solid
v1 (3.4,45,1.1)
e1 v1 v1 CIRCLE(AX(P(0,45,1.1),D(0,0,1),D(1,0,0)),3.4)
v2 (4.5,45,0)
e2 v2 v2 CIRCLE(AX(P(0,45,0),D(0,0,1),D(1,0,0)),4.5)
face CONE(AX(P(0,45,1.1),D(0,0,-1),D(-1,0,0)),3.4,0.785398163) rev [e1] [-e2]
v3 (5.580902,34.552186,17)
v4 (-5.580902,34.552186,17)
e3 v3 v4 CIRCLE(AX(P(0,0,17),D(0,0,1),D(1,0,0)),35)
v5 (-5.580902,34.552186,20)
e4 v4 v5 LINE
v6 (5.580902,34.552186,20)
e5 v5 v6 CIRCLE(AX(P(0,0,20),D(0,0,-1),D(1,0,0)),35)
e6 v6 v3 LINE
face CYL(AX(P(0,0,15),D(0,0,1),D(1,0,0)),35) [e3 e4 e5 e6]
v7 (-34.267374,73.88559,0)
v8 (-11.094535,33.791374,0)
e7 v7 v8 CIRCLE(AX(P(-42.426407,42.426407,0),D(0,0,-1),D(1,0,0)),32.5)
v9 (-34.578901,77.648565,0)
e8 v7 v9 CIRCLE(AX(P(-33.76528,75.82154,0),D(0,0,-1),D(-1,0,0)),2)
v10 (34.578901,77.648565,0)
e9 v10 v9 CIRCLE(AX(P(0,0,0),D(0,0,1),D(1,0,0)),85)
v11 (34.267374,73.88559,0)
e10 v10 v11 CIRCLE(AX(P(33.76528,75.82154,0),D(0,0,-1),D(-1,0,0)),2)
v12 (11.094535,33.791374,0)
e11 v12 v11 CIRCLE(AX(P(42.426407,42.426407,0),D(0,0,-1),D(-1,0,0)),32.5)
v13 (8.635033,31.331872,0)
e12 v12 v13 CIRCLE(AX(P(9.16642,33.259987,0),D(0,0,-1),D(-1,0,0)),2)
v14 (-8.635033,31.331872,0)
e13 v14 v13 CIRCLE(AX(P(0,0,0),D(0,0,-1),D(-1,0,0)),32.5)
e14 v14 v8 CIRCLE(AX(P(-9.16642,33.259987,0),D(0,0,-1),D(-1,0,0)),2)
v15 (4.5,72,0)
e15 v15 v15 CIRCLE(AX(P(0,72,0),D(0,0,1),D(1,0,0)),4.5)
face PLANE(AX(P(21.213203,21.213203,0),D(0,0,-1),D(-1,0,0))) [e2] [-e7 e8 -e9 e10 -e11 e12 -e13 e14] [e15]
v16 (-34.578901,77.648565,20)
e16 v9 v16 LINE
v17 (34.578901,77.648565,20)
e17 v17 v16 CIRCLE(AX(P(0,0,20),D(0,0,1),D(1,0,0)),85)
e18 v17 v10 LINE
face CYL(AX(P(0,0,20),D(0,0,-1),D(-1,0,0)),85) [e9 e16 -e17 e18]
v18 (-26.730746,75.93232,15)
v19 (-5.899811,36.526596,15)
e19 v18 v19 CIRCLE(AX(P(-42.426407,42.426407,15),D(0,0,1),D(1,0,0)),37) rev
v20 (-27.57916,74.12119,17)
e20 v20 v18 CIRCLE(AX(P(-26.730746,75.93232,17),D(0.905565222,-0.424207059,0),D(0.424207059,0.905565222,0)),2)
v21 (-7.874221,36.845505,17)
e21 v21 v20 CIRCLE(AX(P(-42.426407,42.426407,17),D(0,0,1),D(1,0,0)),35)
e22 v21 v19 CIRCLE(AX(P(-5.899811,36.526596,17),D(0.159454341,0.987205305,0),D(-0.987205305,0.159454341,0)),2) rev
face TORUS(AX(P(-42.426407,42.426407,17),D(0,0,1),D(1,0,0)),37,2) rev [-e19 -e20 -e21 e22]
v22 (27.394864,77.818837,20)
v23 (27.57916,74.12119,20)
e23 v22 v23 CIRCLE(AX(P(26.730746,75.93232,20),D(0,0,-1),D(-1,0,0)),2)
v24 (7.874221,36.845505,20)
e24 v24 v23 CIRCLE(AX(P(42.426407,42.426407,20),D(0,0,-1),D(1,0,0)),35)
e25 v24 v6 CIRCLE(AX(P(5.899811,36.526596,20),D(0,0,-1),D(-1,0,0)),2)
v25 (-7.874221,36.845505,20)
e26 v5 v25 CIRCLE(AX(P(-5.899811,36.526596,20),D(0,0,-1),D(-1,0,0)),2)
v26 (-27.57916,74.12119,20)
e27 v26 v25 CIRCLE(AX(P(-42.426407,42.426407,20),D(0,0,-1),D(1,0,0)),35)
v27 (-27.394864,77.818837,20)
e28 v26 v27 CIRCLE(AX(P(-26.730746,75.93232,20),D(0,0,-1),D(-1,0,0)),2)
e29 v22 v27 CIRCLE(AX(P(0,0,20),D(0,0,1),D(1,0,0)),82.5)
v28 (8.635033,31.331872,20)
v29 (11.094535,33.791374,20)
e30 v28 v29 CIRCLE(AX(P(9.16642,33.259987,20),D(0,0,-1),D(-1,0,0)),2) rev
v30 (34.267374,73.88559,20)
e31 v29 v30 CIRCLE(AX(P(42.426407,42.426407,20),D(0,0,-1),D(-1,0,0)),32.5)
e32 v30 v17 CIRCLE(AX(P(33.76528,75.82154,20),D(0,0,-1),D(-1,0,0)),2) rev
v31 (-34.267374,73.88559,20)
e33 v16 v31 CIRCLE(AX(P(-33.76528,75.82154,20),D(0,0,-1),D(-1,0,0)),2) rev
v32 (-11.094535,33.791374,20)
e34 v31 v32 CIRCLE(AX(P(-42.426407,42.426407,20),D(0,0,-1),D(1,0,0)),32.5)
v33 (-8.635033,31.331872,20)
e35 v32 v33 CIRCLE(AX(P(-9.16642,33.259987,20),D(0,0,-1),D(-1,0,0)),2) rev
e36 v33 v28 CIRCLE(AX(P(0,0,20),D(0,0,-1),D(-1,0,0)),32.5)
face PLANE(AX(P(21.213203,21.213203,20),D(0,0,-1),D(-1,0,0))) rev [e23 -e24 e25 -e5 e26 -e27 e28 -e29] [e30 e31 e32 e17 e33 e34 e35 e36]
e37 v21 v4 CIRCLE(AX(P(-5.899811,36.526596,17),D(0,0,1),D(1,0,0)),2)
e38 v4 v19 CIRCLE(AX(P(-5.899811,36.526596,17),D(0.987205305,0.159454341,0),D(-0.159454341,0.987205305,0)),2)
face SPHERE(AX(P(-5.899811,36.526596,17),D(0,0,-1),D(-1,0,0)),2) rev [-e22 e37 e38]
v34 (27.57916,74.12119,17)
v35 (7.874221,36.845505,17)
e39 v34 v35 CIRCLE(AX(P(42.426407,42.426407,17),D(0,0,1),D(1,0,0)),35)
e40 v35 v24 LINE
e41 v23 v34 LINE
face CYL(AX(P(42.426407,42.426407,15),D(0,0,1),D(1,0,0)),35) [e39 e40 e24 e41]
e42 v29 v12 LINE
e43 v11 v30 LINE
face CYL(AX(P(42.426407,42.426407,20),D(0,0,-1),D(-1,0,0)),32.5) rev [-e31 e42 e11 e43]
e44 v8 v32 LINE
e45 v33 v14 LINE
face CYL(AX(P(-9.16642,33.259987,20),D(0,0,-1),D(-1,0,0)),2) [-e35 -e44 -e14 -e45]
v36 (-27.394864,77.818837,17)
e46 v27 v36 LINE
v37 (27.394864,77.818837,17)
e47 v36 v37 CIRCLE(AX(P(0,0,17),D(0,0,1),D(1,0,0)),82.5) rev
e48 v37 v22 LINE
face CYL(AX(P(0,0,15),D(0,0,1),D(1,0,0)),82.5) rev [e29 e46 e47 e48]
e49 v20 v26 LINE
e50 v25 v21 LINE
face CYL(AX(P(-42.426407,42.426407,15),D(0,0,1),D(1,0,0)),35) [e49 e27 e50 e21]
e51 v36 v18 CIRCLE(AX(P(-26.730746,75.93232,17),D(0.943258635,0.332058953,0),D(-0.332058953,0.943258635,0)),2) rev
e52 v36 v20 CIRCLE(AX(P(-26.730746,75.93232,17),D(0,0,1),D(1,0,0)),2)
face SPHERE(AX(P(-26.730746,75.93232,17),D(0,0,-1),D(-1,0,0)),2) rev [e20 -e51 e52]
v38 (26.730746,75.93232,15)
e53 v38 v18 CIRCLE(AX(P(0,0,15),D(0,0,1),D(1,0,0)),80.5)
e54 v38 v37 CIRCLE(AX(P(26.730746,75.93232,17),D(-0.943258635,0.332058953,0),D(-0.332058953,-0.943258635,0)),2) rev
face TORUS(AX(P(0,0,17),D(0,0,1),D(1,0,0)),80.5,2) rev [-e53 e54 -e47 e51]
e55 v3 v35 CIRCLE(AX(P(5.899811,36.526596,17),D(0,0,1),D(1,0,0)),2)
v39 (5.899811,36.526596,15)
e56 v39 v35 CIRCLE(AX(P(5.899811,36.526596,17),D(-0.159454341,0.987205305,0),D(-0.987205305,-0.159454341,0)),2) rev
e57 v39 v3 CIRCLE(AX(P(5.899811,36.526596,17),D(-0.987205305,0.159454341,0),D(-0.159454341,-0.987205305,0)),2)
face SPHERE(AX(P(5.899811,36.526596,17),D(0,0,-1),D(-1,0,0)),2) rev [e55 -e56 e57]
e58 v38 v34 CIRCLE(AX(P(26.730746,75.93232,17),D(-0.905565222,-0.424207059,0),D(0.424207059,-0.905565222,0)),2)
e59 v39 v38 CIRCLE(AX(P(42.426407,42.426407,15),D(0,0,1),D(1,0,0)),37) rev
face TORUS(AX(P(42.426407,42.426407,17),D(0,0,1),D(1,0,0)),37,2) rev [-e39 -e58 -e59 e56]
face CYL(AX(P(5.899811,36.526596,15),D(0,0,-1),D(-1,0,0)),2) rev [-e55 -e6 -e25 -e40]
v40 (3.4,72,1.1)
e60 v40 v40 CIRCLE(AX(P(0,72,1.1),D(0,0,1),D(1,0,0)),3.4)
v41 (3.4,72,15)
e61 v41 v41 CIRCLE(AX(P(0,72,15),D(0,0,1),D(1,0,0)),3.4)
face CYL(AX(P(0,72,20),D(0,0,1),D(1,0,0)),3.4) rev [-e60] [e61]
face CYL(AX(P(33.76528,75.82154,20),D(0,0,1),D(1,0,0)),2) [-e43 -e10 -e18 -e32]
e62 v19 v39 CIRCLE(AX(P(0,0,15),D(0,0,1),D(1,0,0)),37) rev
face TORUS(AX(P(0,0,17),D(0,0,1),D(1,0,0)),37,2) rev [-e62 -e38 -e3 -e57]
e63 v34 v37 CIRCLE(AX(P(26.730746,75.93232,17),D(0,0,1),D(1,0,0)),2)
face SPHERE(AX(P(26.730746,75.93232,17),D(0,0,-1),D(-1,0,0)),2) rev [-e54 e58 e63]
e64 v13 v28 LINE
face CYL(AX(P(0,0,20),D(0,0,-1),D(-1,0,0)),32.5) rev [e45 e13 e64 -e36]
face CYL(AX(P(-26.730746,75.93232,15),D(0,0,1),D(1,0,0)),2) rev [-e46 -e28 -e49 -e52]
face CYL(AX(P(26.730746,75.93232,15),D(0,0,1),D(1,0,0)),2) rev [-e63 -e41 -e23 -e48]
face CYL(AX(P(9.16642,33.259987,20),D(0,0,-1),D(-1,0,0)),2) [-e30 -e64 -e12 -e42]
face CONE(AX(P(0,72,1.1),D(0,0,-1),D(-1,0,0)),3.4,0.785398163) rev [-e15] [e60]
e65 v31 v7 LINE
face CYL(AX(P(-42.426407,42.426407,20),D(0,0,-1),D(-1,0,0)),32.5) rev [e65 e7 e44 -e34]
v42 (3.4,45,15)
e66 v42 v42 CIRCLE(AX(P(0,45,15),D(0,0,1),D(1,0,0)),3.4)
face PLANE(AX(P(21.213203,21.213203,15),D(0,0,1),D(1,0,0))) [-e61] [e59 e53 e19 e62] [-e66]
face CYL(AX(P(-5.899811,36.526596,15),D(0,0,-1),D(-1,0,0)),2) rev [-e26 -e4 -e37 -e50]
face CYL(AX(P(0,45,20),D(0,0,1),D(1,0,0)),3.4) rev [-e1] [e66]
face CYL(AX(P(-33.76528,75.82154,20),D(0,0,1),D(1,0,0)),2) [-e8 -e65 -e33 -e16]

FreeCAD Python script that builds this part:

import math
import FreeCAD as App
import Part
import Sketcher

V = App.Vector


def edges_at(feature, points):
    """Names of the edges that pass closest to the given points."""
    edges = feature.Shape.Edges
    near = lambda p: min(range(len(edges)), key=lambda i: edges[i].distToShape(Part.Vertex(*p))[0])
    return sorted({f"Edge{near(p) + 1}" for p in points})


def add_polygon(sketch, points):
    """Adds a closed chain of lines whose ends are joined by coincident constraints."""
    first, n = sketch.GeometryCount, len(points)
    for a, b in zip(points, points[1:] + points[:1]):
        sketch.addGeometry(Part.LineSegment(App.Vector(*a, 0), App.Vector(*b, 0)), False)
    for i in range(n):
        sketch.addConstraint(Sketcher.Constraint("Coincident", first + i, 2, first + (i + 1) % n, 1))

doc = App.newDocument("Part")
body = doc.addObject("PartDesign::Body", "Body")

sketch1 = body.newObject("Sketcher::SketchObject", "Sketch")
sketch1.AttachmentSupport = (doc.getObject("XY_Plane"), [""])
sketch1.MapMode = "FlatFace"
sketch1.addGeometry([
    Part.ArcOfCircle(Part.Circle(V(0, 0, 0), V(0, 0, 1), 85), math.radians(62), math.radians(118)),
    Part.ArcOfCircle(Part.Circle(V(-42, 42, 0), V(0, 0, 1), 32), math.radians(-22), math.radians(86)),
    Part.ArcOfCircle(Part.Circle(V(0, 0, 0), V(0, 0, 1), 32), math.radians(68), math.radians(112)),
    Part.ArcOfCircle(Part.Circle(V(42, 42, 0), V(0, 0, 1), 32), math.radians(94), math.radians(202)),
], False)
sketch1.addConstraint([
    Sketcher.Constraint("Coincident", 0, 2, 1, 2),
    Sketcher.Constraint("Coincident", 1, 1, 2, 2),
    Sketcher.Constraint("Coincident", 2, 1, 3, 2),
    Sketcher.Constraint("Coincident", 3, 1, 0, 1),
    Sketcher.Constraint("Coincident", 0, 3, -1, 1),
    Sketcher.Constraint("Coincident", 2, 3, -1, 1),
    Sketcher.Constraint("Equal", 1, 2),
    Sketcher.Constraint("Equal", 2, 3),
    Sketcher.Constraint("Symmetric", 1, 3, 3, 3, -2),
    Sketcher.Constraint("Radius", 0, 85.0),
    Sketcher.Constraint("Radius", 1, 32.5),
    Sketcher.Constraint("DistanceX", 0, 2, 1, 1, 27.896602),
    Sketcher.Constraint("DistanceX", 0, 2, -1, 1, 40.27097),
])
pad1 = body.newObject("PartDesign::Pad", "Pad")
pad1.Profile = sketch1
pad1.Length = 20
doc.recompute()

fillet = body.newObject("PartDesign::Fillet", "Fillet")
fillet.Base = (pad1, edges_at(pad1, [
    (-12.374, 30.052, 10),
    (-40.271, 74.855, 10),
    (40.271, 74.855, 10),
    (12.374, 30.052, 10),
]))
fillet.Radius = 2

sketch2 = body.newObject("Sketcher::SketchObject", "Sketch001")
sketch2.AttachmentSupport = (doc.getObject("XY_Plane"), [""])
sketch2.MapMode = "FlatFace"
sketch2.AttachmentOffset = App.Placement(V(0, 0, 20), App.Rotation())
sketch2.addGeometry([
    Part.ArcOfCircle(Part.Circle(V(0, 0, 0), V(0, 0, 1), 83), math.radians(67), math.radians(113)),
    Part.ArcOfCircle(Part.Circle(V(-42, 42, 0), V(0, 0, 1), 35), math.radians(-14), math.radians(73)),
    Part.ArcOfCircle(Part.Circle(V(0, 0, 0), V(0, 0, 1), 35), math.radians(76), math.radians(104)),
    Part.ArcOfCircle(Part.Circle(V(42, 42, 0), V(0, 0, 1), 35), math.radians(107), math.radians(194)),
], False)
sketch2.addConstraint([
    Sketcher.Constraint("Coincident", 0, 2, 1, 2),
    Sketcher.Constraint("Coincident", 1, 1, 2, 2),
    Sketcher.Constraint("Coincident", 2, 1, 3, 2),
    Sketcher.Constraint("Coincident", 3, 1, 0, 1),
    Sketcher.Constraint("Coincident", 0, 3, -1, 1),
    Sketcher.Constraint("Coincident", 2, 3, -1, 1),
    Sketcher.Constraint("Equal", 1, 2),
    Sketcher.Constraint("Equal", 2, 3),
    Sketcher.Constraint("Symmetric", 1, 3, 3, 3, -2),
    Sketcher.Constraint("Radius", 1, 35.0),
    Sketcher.Constraint("Radius", 0, 82.5),
    Sketcher.Constraint("DistanceX", 1, 3, 0, 2, 10.14745),
    Sketcher.Constraint("DistanceY", 1, 1, 0, 2, 41.96236),
])
pocket1 = body.newObject("PartDesign::Pocket", "Pocket")
pocket1.Profile = sketch2
pocket1.Length = 5
doc.recompute()

fillet2 = body.newObject("PartDesign::Fillet", "Fillet001")
fillet2.Base = (pocket1, edges_at(pocket1, [
    (11.986, 59.701, 15),
    (32.279, 75.923, 17.5),
    (0, 35, 15),
    (8.466, 33.961, 17.5),
    (-11.986, 59.701, 15),
    (-8.466, 33.961, 17.5),
    (0, 82.5, 15),
    (-32.279, 75.923, 17.5),
]))
fillet2.Radius = 2

sketch3 = body.newObject("Sketcher::SketchObject", "Sketch002")
sketch3.AttachmentSupport = (doc.getObject("YZ_Plane"), [""])
sketch3.MapMode = "FlatFace"
add_polygon(sketch3, [(45, 0), (45, 20), (40.5, 20), (41.6, 18.9), (41.6, 1.1), (40.5, 0)])
sketch3.addGeometry(Part.LineSegment(V(45, 20, 0), V(45, 0, 0)), True)
sketch3.addConstraint([
    Sketcher.Constraint("Vertical", 0),
    Sketcher.Constraint("Horizontal", 1),
    Sketcher.Constraint("Vertical", 3),
    Sketcher.Constraint("Horizontal", 5),
    Sketcher.Constraint("Vertical", 6),
    Sketcher.Constraint("Coincident", 6, 1, 0, 2),
    Sketcher.Constraint("PointOnObject", 4, 2, -1),
    Sketcher.Constraint("PointOnObject", 6, 2, -1),
    Sketcher.Constraint("Perpendicular", 2, 4),
    Sketcher.Constraint("Vertical", 1, 2, 4, 2),
    Sketcher.Constraint("Equal", 2, 4),
    Sketcher.Constraint("DistanceY", 0, 1, 0, 2, 20.0),
    Sketcher.Constraint("DistanceX", 1, 2, 1, 1, 4.5),
    Sketcher.Constraint("DistanceY", 3, 2, 3, 1, 17.8),
    Sketcher.Constraint("DistanceX", -1, 1, 0, 2, 45.0),
])
groove = body.newObject("PartDesign::Groove", "Groove")
groove.Profile = sketch3
groove.ReferenceAxis = (sketch3, ["Axis0"])
groove.Angle = 360
doc.recompute()

linearpattern = body.newObject("PartDesign::LinearPattern", "LinearPattern")
linearpattern.Originals = [groove]
linearpattern.Direction = (doc.getObject("Y_Axis"), [""])
linearpattern.Mode = "offset"
linearpattern.Offset = 27
linearpattern.Occurrences = 2
body.Tip = linearpattern

doc.recompute()
